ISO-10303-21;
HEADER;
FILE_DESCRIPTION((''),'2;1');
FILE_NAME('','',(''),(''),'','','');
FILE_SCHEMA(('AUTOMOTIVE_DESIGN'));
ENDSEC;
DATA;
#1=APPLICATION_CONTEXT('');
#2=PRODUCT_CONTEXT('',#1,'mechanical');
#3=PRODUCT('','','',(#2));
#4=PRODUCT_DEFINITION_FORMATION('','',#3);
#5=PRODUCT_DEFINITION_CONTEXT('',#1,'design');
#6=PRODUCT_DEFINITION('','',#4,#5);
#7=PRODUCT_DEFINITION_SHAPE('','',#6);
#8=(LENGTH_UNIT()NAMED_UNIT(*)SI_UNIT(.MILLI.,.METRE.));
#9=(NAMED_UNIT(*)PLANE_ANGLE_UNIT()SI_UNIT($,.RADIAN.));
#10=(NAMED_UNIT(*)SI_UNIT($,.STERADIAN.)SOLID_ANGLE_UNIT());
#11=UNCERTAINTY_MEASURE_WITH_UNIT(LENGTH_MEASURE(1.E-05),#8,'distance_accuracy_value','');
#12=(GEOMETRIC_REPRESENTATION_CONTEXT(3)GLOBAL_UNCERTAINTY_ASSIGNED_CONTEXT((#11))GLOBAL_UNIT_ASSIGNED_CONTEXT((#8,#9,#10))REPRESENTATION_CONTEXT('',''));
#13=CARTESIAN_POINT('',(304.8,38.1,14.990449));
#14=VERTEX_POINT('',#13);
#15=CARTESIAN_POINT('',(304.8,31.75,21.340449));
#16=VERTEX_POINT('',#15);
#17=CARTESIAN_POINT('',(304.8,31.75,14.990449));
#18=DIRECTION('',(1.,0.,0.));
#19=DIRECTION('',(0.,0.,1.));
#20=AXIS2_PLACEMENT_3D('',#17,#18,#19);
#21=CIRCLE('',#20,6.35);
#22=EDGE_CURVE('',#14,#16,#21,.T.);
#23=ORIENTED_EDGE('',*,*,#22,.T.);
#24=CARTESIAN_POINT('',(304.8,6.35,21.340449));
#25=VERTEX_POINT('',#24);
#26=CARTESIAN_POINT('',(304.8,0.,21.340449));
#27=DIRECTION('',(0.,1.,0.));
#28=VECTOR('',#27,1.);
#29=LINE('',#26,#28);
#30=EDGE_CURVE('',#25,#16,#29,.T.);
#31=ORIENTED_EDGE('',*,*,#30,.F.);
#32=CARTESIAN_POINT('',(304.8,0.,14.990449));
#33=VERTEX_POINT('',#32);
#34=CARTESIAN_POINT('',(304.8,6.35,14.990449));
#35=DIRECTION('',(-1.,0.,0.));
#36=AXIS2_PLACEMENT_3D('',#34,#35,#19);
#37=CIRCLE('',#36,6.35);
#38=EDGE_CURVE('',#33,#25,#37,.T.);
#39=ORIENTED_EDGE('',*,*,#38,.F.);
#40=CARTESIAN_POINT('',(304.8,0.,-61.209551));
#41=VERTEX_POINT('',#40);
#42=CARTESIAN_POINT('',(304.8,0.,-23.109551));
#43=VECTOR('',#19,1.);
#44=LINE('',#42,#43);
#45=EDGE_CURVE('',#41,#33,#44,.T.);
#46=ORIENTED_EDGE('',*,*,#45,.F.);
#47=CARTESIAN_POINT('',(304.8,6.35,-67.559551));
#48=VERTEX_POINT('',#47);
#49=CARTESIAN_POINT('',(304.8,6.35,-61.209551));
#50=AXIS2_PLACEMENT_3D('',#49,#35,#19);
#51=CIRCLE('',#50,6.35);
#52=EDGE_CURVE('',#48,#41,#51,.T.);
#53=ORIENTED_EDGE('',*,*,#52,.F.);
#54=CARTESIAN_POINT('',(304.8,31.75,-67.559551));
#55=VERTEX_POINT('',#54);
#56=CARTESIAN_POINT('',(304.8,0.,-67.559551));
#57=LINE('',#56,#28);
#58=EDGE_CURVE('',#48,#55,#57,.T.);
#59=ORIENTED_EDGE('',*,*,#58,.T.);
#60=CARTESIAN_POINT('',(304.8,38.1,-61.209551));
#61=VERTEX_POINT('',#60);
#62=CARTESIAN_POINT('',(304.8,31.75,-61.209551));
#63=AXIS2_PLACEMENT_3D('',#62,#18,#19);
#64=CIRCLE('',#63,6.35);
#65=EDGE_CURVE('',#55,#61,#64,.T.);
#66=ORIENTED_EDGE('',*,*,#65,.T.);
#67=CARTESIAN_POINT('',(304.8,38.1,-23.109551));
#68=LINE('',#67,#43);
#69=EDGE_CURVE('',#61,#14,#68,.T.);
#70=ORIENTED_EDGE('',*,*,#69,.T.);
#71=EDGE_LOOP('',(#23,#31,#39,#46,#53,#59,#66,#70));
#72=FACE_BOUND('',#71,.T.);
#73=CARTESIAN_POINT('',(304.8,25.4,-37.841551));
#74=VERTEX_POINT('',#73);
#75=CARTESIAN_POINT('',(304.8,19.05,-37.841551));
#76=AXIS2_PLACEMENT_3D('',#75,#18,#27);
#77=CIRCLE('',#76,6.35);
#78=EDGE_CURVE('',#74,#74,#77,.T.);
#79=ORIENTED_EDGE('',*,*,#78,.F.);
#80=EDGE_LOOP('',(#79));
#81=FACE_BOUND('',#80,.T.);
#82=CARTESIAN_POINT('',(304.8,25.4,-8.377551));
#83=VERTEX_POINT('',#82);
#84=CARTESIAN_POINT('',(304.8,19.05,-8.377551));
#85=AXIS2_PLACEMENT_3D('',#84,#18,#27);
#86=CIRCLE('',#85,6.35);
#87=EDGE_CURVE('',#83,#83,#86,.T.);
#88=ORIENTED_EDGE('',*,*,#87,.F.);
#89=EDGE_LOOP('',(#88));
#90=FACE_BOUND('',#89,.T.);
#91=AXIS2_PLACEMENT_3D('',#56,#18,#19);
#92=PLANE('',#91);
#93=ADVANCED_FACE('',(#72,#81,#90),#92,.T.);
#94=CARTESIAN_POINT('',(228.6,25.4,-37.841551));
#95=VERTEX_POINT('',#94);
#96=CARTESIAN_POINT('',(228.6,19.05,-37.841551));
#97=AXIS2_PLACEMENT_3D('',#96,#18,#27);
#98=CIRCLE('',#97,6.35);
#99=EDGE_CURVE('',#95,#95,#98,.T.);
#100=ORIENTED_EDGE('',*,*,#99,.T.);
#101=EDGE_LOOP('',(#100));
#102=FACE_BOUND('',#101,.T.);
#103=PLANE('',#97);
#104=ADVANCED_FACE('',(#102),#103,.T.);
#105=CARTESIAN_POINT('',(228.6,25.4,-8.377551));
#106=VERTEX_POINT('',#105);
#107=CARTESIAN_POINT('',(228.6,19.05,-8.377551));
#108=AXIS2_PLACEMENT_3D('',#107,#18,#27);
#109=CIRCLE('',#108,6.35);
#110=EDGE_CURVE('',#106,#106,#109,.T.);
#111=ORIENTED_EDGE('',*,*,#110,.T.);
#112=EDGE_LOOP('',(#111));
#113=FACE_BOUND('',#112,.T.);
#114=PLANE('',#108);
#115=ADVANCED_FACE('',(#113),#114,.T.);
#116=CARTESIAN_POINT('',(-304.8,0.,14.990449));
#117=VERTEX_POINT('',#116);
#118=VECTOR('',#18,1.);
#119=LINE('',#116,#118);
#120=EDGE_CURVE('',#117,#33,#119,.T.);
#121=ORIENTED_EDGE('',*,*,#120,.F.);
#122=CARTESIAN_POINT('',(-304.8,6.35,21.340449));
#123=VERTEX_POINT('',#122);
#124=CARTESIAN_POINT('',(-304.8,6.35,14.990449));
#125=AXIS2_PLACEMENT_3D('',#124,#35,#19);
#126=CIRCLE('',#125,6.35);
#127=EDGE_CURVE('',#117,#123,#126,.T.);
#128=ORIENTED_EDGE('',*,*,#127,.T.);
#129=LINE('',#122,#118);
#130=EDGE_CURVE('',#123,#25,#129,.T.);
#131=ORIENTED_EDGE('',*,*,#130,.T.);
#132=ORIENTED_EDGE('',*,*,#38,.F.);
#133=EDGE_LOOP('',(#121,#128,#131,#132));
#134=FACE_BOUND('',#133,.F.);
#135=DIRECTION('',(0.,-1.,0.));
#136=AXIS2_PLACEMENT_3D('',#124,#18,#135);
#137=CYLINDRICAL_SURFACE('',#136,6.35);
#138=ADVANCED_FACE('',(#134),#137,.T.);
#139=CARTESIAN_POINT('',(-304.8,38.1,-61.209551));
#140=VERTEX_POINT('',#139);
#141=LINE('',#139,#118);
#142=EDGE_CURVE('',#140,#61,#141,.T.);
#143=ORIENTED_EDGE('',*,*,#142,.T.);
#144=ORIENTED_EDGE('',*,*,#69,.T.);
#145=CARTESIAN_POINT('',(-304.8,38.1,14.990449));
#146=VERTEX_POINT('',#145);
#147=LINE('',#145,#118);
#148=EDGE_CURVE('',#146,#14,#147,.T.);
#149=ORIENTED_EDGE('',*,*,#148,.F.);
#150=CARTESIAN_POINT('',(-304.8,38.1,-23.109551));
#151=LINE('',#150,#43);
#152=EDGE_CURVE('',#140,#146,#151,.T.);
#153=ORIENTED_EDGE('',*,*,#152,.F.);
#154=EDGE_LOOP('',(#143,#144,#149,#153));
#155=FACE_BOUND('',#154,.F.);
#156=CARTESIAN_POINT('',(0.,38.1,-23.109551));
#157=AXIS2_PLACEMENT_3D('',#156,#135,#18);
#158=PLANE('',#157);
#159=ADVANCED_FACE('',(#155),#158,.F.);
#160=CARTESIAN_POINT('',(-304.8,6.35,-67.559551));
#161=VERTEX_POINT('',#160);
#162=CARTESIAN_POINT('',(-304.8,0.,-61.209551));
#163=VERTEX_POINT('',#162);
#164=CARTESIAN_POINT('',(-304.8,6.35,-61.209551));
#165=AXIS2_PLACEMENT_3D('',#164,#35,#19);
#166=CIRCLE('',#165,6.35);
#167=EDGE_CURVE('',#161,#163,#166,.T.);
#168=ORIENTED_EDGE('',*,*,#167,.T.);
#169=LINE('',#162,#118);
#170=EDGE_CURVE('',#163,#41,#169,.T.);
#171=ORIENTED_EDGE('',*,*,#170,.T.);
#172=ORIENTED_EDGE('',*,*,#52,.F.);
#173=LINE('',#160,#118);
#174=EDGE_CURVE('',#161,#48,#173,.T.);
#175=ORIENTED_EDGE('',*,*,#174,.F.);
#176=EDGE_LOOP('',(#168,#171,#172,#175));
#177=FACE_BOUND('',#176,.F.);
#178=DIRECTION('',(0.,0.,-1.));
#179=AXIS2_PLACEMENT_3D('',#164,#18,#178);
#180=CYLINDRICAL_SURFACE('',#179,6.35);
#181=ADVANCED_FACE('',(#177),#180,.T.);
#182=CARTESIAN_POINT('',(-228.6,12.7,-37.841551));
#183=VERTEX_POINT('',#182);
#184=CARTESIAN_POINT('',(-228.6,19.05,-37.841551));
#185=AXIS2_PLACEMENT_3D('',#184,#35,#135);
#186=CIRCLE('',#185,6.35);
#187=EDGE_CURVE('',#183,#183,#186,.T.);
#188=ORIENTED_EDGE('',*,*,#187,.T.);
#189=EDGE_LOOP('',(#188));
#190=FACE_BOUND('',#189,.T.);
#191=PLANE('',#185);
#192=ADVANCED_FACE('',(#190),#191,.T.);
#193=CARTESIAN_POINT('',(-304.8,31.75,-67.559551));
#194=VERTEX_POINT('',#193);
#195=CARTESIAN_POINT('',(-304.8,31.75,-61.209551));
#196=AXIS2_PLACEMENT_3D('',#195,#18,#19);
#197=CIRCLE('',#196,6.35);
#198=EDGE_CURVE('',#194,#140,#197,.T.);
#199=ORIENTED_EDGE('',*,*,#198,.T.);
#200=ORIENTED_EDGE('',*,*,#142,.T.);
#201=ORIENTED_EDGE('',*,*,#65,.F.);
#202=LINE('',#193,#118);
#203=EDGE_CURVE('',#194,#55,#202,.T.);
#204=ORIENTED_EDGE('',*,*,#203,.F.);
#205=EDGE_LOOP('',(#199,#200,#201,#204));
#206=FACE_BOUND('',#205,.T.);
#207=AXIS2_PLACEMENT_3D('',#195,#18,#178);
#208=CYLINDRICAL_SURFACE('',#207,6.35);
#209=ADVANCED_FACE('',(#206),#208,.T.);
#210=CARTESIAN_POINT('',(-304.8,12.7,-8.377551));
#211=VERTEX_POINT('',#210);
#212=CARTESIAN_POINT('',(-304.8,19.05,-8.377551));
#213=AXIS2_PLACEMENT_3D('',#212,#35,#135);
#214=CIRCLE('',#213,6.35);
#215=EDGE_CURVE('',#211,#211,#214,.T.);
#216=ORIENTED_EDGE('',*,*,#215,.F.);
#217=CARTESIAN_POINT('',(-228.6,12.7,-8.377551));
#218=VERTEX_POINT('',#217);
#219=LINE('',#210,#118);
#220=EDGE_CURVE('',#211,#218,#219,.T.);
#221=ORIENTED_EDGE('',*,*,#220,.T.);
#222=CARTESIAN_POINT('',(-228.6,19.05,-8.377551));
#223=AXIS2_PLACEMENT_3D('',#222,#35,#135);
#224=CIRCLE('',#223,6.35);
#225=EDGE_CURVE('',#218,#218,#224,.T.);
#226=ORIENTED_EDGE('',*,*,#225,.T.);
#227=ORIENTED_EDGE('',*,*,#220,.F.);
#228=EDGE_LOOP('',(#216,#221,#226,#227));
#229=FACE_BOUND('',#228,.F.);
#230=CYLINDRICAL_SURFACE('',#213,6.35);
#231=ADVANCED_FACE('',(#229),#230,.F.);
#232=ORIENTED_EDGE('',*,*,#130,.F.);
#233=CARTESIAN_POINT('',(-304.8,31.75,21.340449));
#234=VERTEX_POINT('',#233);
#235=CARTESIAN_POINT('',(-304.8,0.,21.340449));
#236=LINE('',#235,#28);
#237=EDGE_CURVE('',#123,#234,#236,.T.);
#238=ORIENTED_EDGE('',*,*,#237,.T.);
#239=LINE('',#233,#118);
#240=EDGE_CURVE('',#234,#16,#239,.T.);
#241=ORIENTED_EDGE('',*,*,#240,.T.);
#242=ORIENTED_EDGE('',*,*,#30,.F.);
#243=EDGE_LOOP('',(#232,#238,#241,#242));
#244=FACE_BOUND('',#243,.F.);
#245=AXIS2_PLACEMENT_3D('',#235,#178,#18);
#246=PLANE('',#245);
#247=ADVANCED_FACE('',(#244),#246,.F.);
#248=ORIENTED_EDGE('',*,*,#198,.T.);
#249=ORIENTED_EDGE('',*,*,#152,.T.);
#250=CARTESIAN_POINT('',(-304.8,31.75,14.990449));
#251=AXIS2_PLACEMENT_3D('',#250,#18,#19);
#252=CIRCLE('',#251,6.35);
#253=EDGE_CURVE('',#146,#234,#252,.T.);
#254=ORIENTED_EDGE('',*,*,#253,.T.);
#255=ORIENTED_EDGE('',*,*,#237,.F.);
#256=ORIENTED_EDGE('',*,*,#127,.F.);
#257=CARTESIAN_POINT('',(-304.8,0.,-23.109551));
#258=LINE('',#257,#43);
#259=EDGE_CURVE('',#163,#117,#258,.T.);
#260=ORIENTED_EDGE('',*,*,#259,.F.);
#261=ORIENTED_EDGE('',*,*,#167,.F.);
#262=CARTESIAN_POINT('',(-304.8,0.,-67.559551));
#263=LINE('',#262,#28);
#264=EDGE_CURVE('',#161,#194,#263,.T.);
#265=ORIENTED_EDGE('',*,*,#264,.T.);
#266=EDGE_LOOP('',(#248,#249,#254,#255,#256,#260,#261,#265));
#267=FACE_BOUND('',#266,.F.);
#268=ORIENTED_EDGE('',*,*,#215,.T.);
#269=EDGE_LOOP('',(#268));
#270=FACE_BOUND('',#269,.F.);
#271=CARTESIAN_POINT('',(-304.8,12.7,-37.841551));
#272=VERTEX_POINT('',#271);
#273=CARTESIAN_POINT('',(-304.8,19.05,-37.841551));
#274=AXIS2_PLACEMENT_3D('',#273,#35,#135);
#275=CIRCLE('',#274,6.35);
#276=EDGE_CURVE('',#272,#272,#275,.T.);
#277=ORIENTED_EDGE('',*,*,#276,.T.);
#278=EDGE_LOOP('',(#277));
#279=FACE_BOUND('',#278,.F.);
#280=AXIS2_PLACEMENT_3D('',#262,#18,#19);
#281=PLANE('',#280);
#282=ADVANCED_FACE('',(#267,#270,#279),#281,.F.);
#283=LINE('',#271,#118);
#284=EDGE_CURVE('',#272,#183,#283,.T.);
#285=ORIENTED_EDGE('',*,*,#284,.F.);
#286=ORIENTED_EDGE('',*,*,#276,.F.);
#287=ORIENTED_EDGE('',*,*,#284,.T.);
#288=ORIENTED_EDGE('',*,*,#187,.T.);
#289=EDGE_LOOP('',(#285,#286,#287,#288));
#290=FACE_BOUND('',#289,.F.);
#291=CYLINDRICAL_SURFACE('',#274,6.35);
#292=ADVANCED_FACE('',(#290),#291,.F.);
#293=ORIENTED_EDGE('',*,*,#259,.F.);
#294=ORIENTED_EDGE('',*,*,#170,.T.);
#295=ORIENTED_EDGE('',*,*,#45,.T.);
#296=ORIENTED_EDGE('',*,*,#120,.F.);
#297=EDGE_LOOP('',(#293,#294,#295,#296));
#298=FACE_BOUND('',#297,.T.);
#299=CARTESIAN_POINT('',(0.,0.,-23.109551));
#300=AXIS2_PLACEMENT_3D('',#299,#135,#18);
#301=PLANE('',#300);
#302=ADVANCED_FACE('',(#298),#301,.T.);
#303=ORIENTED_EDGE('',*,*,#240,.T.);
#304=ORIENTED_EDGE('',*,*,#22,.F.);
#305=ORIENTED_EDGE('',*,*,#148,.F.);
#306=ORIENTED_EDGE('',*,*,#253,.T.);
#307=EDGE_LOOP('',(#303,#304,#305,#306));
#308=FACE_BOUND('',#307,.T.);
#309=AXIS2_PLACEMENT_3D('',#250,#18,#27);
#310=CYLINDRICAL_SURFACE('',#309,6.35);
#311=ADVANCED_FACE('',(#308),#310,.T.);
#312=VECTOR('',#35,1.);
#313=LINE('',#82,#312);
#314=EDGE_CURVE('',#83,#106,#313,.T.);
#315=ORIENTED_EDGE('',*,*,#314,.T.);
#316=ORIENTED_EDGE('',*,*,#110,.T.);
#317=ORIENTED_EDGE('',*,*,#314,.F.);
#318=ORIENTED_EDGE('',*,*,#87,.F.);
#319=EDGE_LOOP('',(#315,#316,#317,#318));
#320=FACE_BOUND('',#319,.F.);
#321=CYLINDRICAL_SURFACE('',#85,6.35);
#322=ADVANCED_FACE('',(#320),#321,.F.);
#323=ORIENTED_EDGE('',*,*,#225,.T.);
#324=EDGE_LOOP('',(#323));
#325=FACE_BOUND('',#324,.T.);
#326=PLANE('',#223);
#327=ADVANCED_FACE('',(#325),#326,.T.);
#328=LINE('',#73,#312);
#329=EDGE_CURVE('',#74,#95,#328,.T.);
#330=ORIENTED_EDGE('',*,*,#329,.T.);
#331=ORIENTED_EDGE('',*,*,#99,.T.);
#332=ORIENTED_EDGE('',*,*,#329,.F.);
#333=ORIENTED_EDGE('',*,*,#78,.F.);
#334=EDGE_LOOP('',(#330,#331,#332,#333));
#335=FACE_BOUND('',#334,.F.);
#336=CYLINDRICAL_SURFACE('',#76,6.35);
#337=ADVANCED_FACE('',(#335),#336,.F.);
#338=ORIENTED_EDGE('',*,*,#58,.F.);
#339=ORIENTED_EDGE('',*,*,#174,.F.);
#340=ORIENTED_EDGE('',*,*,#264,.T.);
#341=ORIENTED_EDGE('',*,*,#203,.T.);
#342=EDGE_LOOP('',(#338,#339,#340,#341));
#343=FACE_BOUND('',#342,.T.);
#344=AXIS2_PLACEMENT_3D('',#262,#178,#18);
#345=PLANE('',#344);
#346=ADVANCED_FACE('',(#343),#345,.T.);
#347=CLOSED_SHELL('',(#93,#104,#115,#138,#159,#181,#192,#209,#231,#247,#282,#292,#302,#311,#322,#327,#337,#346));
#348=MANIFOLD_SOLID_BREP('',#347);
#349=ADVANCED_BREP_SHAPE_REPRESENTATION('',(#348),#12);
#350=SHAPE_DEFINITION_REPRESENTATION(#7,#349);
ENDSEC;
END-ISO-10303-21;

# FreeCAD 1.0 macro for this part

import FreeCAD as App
import Part
import Sketcher
Q = App.Units.Quantity


def edges_at(feature, points):
    """Names of the edges that pass closest to the given points."""
    edges = feature.Shape.Edges
    near = lambda p: min(range(len(edges)), key=lambda i: edges[i].distToShape(Part.Vertex(*p))[0])
    return sorted({f"Edge{near(p) + 1}" for p in points})


def add_polygon(sketch, points):
    """Adds a closed chain of lines whose ends are joined by coincident constraints."""
    first, n = sketch.GeometryCount, len(points)
    for a, b in zip(points, points[1:] + points[:1]):
        sketch.addGeometry(Part.LineSegment(App.Vector(*a, 0), App.Vector(*b, 0)), False)
    for i in range(n):
        sketch.addConstraint(Sketcher.Constraint("Coincident", first + i, 2, first + (i + 1) % n, 1))

doc = App.newDocument("Part")
body = doc.addObject("PartDesign::Body", "Body")

# Sketch on XZ plane
sketch1 = body.newObject("Sketcher::SketchObject", "Sketch")
sketch1.AttachmentSupport = (doc.getObject("XZ_Plane"), [""])
sketch1.MapMode = "FlatFace"
add_polygon(sketch1, [(-305, 21), (-305, -68), (305, -68), (305, 21)])  # lines 0-3
sketch1.addConstraint([
    Sketcher.Constraint("Vertical", 0),
    Sketcher.Constraint("Horizontal", 1),
    Sketcher.Constraint("Vertical", 2),
    Sketcher.Constraint("Horizontal", 3),
    Sketcher.Constraint("DistanceX", 1, 1, 1, 2, Q("24 in")),
    Sketcher.Constraint("DistanceY", 0, 2, 0, 1, Q("3.5 in")),
    Sketcher.Constraint("DistanceX", 0, 2, -1, 1, Q("12 in")),
    Sketcher.Constraint("DistanceY", 0, 2, -1, 1, 67.559551),
])
pad1 = body.newObject("PartDesign::Pad", "Pad")
pad1.Profile = sketch1
pad1.Length = Q("1.5 in")
pad1.Reversed = True

# Sketch on YZ plane
sketch2 = body.newObject("Sketcher::SketchObject", "Sketch001")
sketch2.AttachmentSupport = (doc.getObject("YZ_Plane"), [""])
sketch2.MapMode = "FlatFace"
sketch2.AttachmentOffset = App.Placement(App.Vector(0, 0, -12 * 25.4), App.Rotation())
sketch2.addGeometry([
    Part.Circle(App.Vector(19, -8, 0), App.Vector(0, 0, 1), 6),
    Part.Circle(App.Vector(19, -38, 0), App.Vector(0, 0, 1), 6),
], False)
sketch2.addConstraint([
    Sketcher.Constraint("Equal", 0, 1),
    Sketcher.Constraint("Vertical", 0, 3, 1, 3),
    Sketcher.Constraint("Diameter", 0, Q("0.5 in")),
    Sketcher.Constraint("DistanceX", -1, 1, 0, 3, Q("0.75 in")),
    Sketcher.Constraint("DistanceY", 1, 3, 0, 3, Q("1.16 in")),
    Sketcher.Constraint("DistanceY", 0, 3, -1, 1, 8.377551),
])
pocket1 = body.newObject("PartDesign::Pocket", "Pocket")
pocket1.Profile = sketch2
pocket1.Length = Q("3 in")
pocket1.Reversed = True

# Sketch on YZ plane
sketch3 = body.newObject("Sketcher::SketchObject", "Sketch002")
sketch3.AttachmentSupport = (doc.getObject("YZ_Plane"), [""])
sketch3.MapMode = "FlatFace"
sketch3.AttachmentOffset = App.Placement(App.Vector(0, 0, 12 * 25.4), App.Rotation())
sketch3.addGeometry([
    Part.Circle(App.Vector(19, -8, 0), App.Vector(0, 0, 1), 6),
    Part.Circle(App.Vector(19, -38, 0), App.Vector(0, 0, 1), 6),
], False)
sketch3.addConstraint([
    Sketcher.Constraint("Equal", 0, 1),
    Sketcher.Constraint("Vertical", 0, 3, 1, 3),
    Sketcher.Constraint("Diameter", 0, Q("0.5 in")),
    Sketcher.Constraint("DistanceX", -1, 1, 0, 3, Q("0.75 in")),
    Sketcher.Constraint("DistanceY", 1, 3, 0, 3, Q("1.16 in")),
    Sketcher.Constraint("DistanceY", 0, 3, -1, 1, 8.377551),
])
pocket2 = body.newObject("PartDesign::Pocket", "Pocket001")
pocket2.Profile = sketch3
pocket2.Length = Q("3 in")
doc.recompute()

fillet = body.newObject("PartDesign::Fillet", "Fillet")
fillet.Base = (pocket2, edges_at(pocket2, [
    (0, 0, 21.34),
    (0, 38.1, 21.34),
    (0, 38.1, -67.56),
    (0, 0, -67.56),
]))
fillet.Radius = Q("0.25 in")

doc.recompute()
